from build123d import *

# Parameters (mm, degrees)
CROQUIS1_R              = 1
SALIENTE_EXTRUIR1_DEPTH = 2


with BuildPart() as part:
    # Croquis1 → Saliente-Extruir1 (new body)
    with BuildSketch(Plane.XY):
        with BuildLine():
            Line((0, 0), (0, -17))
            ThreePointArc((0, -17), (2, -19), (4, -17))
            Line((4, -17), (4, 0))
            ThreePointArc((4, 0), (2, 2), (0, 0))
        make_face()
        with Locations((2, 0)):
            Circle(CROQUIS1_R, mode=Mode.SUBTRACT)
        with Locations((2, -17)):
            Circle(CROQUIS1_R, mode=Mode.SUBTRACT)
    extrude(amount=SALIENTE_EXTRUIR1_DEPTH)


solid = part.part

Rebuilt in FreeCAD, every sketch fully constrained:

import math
import FreeCAD as App
import Part
import Sketcher
from FreeCAD import Vector

doc = App.newDocument("Part")
body = doc.addObject("PartDesign::Body", "Body")

sketch1 = body.newObject("Sketcher::SketchObject", "Sketch")
sketch1.AttachmentSupport = (doc.getObject("XY_Plane"), [""])
sketch1.MapMode = "FlatFace"
sketch1.addGeometry([
    Part.LineSegment(Vector(0, 0, 0), Vector(0, -17, 0)),
    Part.ArcOfCircle(Part.Circle(Vector(2, -17, 0), Vector(0, 0, 1), 2), math.radians(180), math.radians(360)),
    Part.LineSegment(Vector(4, -17, 0), Vector(4, 0, 0)),
    Part.ArcOfCircle(Part.Circle(Vector(2, 0, 0), Vector(0, 0, 1), 2), math.radians(0), math.radians(180)),
    Part.Circle(Vector(2, -17, 0), Vector(0, 0, 1), 1),
    Part.Circle(Vector(2, 0, 0), Vector(0, 0, 1), 1),
], False)
sketch1.addConstraint([
    Sketcher.Constraint("Tangent", 0, 2, 1, 1),
    Sketcher.Constraint("Tangent", 1, 2, 2, 1),
    Sketcher.Constraint("Tangent", 2, 2, 3, 1),
    Sketcher.Constraint("Tangent", 3, 2, 0, 1),
    Sketcher.Constraint("Vertical", 0),
    Sketcher.Constraint("Vertical", 2),
    Sketcher.Constraint("Coincident", 3, 2, -1, 1),
    Sketcher.Constraint("Coincident", 4, 3, 1, 3),
    Sketcher.Constraint("Coincident", 5, 3, 3, 3),
    Sketcher.Constraint("Equal", 4, 5),
    Sketcher.Constraint("Diameter", 4, 2.0),
    Sketcher.Constraint("Radius", 1, 2.0),
    Sketcher.Constraint("DistanceY", 0, 2, 0, 1, 17.0),
])
pad1 = body.newObject("PartDesign::Pad", "Pad")
pad1.Profile = sketch1
pad1.Length = 2

doc.recompute()
